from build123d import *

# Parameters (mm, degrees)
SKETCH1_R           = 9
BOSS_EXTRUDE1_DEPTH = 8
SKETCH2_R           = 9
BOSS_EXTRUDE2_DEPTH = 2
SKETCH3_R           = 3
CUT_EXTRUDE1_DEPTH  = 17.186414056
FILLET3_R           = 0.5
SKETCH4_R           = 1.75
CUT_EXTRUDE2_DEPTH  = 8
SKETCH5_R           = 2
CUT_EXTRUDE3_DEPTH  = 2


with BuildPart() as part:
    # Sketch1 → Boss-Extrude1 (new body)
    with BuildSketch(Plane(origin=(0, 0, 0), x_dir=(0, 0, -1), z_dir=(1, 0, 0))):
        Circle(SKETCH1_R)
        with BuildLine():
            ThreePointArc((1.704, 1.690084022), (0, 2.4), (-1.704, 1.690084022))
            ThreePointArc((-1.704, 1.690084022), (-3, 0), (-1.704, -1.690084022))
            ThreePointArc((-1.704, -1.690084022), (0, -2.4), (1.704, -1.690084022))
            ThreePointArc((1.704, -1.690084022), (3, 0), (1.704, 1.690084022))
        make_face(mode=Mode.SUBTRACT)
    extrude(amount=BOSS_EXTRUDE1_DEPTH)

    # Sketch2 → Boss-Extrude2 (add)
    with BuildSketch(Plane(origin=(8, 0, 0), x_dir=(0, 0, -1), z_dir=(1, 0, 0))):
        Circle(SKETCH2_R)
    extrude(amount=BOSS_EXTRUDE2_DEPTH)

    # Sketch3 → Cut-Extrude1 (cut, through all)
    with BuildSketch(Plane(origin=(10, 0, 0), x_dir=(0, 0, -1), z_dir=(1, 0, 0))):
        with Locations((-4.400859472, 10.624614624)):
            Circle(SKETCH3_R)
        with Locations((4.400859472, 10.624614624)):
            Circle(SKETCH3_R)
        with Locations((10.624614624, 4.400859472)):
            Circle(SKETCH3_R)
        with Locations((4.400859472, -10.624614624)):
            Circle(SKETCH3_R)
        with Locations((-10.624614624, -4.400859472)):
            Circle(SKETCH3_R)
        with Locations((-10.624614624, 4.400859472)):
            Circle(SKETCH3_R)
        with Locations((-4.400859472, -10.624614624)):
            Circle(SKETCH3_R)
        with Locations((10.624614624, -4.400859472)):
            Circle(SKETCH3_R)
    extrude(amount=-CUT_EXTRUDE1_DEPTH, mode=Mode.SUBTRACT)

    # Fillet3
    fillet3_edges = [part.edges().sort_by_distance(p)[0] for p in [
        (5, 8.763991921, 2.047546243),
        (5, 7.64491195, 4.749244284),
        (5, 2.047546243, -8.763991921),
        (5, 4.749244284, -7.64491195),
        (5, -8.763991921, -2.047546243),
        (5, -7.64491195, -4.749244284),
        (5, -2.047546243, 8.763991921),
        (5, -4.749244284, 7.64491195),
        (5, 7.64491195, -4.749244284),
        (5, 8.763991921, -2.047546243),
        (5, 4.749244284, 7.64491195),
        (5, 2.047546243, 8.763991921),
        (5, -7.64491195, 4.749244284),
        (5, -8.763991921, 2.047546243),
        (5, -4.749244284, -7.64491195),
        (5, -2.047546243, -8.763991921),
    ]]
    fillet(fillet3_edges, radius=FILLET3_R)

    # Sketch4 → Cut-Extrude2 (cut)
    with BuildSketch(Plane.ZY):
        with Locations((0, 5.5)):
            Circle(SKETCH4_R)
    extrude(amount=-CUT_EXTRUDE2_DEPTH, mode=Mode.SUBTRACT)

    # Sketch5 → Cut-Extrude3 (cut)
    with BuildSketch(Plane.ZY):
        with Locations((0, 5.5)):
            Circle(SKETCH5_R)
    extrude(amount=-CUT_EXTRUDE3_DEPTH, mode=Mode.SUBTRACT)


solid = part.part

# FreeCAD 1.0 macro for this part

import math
import FreeCAD as App
import Part
import Sketcher
from FreeCAD import Vector


def edges_at(feature, points):
    """Names of the edges that pass closest to the given points."""
    edges = feature.Shape.Edges
    near = lambda p: min(range(len(edges)), key=lambda i: edges[i].distToShape(Part.Vertex(*p))[0])
    return sorted({f"Edge{near(p) + 1}" for p in points})

doc = App.newDocument("Part")
params = doc.addObject("Spreadsheet::Sheet", "Params")
for row, (alias, value) in enumerate([
    ("sketch1_diameter", "18 mm"),
    ("sketch1_radius", "2.4 mm"),
    ("sketch1_radius2", "1.75 mm"),
    ("pad1_length", "8 mm"),
    ("sketch2_diameter", "18 mm"),
    ("pad2_length", "2 mm"),
    ("sketch3_diameter", "6 mm"),
    ("fillet_radius", "0.5 mm"),
    ("sketch4_diameter", "3.5 mm"),
    ("pocket2_length", "8 mm"),
    ("sketch5_diameter", "4 mm"),
    ("pocket3_length", "2 mm"),
], start=1):
    params.set(f"A{row}", alias)
    params.set(f"B{row}", "=" + value)
    params.setAlias(f"B{row}", alias)

body = doc.addObject("PartDesign::Body", "Body")

# Sketch on YZ plane
sketch1 = body.newObject("Sketcher::SketchObject", "Sketch")
sketch1.AttachmentSupport = (doc.getObject("YZ_Plane"), [""])
sketch1.MapMode = "FlatFace"
sketch1.addGeometry(Part.Circle(Vector(0, 0, 0), Vector(0, 0, 1), 9), False)
sketch1.addGeometry(Part.ArcOfCircle(Part.Circle(Vector(0, 0, 0), Vector(0, 0, 1), 2.4), math.radians(-45), math.radians(45)), False)
sketch1.addGeometry(Part.ArcOfCircle(Part.Circle(Vector(0, -1.2, 0), Vector(0, 0, 1), 1.8), math.radians(-165), math.radians(-15)), False)
sketch1.addGeometry(Part.ArcOfCircle(Part.Circle(Vector(0, 0, 0), Vector(0, 0, 1), 2.4), math.radians(135), math.radians(225)), False)
sketch1.addGeometry(Part.ArcOfCircle(Part.Circle(Vector(0, 1.2, 0), Vector(0, 0, 1), 1.8), math.radians(15), math.radians(165)), False)
sketch1.addConstraint(Sketcher.Constraint("Coincident", 1, 1, 2, 2))
sketch1.addConstraint(Sketcher.Constraint("Coincident", 2, 1, 3, 2))
sketch1.addConstraint(Sketcher.Constraint("Coincident", 3, 1, 4, 2))
sketch1.addConstraint(Sketcher.Constraint("Coincident", 4, 1, 1, 2))
sketch1.addConstraint(Sketcher.Constraint("Coincident", 0, 3, -1, 1))
sketch1.addConstraint(Sketcher.Constraint("Coincident", 1, 3, -1, 1))
sketch1.addConstraint(Sketcher.Constraint("Coincident", 3, 3, -1, 1))
sketch1.addConstraint(Sketcher.Constraint("Equal", 1, 3))
sketch1.addConstraint(Sketcher.Constraint("Equal", 2, 4))
sketch1.addConstraint(Sketcher.Constraint("Symmetric", 2, 3, 4, 3, -1, 1))
sketch1.addConstraint(Sketcher.Constraint("PointOnObject", 2, 3, -2))
sketch1.addConstraint(Sketcher.Constraint("Diameter", 0, 18.0))
sketch1.addConstraint(Sketcher.Constraint("Radius", 1, 2.4))
sketch1.addConstraint(Sketcher.Constraint("Radius", 2, 1.75))
sketch1.addConstraint(Sketcher.Constraint("DistanceY", 2, 3, 4, 3, 2.5))
sketch1.setExpression("Constraints[11]", "Params.sketch1_diameter")
sketch1.setExpression("Constraints[12]", "Params.sketch1_radius")
sketch1.setExpression("Constraints[13]", "Params.sketch1_radius2")
pad1 = body.newObject("PartDesign::Pad", "Pad")
pad1.Profile = sketch1
pad1.setExpression("Length", "Params.pad1_length")

# Sketch on YZ plane
sketch2 = body.newObject("Sketcher::SketchObject", "Sketch001")
sketch2.AttachmentSupport = (doc.getObject("YZ_Plane"), [""])
sketch2.MapMode = "FlatFace"
sketch2.AttachmentOffset = App.Placement(Vector(0, 0, 8), App.Rotation())
sketch2.addGeometry(Part.Circle(Vector(0, 0, 0), Vector(0, 0, 1), 9), False)
sketch2.addConstraint(Sketcher.Constraint("Coincident", 0, 3, -1, 1))
sketch2.addConstraint(Sketcher.Constraint("Diameter", 0, 18.0))
sketch2.setExpression("Constraints[1]", "Params.sketch2_diameter")
pad2 = body.newObject("PartDesign::Pad", "Pad001")
pad2.Profile = sketch2
pad2.setExpression("Length", "Params.pad2_length")

# Sketch on YZ plane
sketch3 = body.newObject("Sketcher::SketchObject", "Sketch002")
sketch3.AttachmentSupport = (doc.getObject("YZ_Plane"), [""])
sketch3.MapMode = "FlatFace"
sketch3.AttachmentOffset = App.Placement(Vector(0, 0, 10), App.Rotation())
sketch3.addGeometry(Part.Circle(Vector(10.6, 4.4, 0), Vector(0, 0, 1), 3), False)
sketch3.addGeometry(Part.Circle(Vector(10.6, -4.4, 0), Vector(0, 0, 1), 3), False)
sketch3.addGeometry(Part.Circle(Vector(4.4, -10.6, 0), Vector(0, 0, 1), 3), False)
sketch3.addGeometry(Part.Circle(Vector(-10.6, -4.4, 0), Vector(0, 0, 1), 3), False)
sketch3.addGeometry(Part.Circle(Vector(-4.4, 10.6, 0), Vector(0, 0, 1), 3), False)
sketch3.addGeometry(Part.Circle(Vector(4.4, 10.6, 0), Vector(0, 0, 1), 3), False)
sketch3.addGeometry(Part.Circle(Vector(-10.6, 4.4, 0), Vector(0, 0, 1), 3), False)
sketch3.addGeometry(Part.Circle(Vector(-4.4, -10.6, 0), Vector(0, 0, 1), 3), False)
sketch3.addConstraint(Sketcher.Constraint("Equal", 0, 1))
sketch3.addConstraint(Sketcher.Constraint("Equal", 1, 2))
sketch3.addConstraint(Sketcher.Constraint("Equal", 2, 3))
sketch3.addConstraint(Sketcher.Constraint("Equal", 3, 4))
sketch3.addConstraint(Sketcher.Constraint("Equal", 4, 5))
sketch3.addConstraint(Sketcher.Constraint("Equal", 5, 6))
sketch3.addConstraint(Sketcher.Constraint("Equal", 6, 7))
sketch3.addConstraint(Sketcher.Constraint("Symmetric", 0, 3, 3, 3, -1, 1))
sketch3.addConstraint(Sketcher.Constraint("Symmetric", 2, 3, 4, 3, -1, 1))
sketch3.addConstraint(Sketcher.Constraint("Symmetric", 1, 3, 6, 3, -1, 1))
sketch3.addConstraint(Sketcher.Constraint("Symmetric", 5, 3, 7, 3, -1, 1))
sketch3.addConstraint(Sketcher.Constraint("Symmetric", 1, 3, 3, 3, -2))
sketch3.addConstraint(Sketcher.Constraint("Symmetric", 4, 3, 5, 3, -2))
sketch3.addConstraint(Sketcher.Constraint("Diameter", 0, 6.0))
sketch3.addConstraint(Sketcher.Constraint("DistanceY", -1, 1, 0, 3, 4.400859))
sketch3.addConstraint(Sketcher.Constraint("DistanceX", -1, 1, 2, 3, 4.400859))
sketch3.addConstraint(Sketcher.Constraint("DistanceX", 3, 3, 1, 3, 21.249229))
sketch3.addConstraint(Sketcher.Constraint("DistanceY", 2, 3, 4, 3, 21.249229))
sketch3.setExpression("Constraints[13]", "Params.sketch3_diameter")
pocket1 = body.newObject("PartDesign::Pocket", "Pocket")
pocket1.Profile = sketch3
pocket1.Type = "ThroughAll"
doc.recompute()

fillet = body.newObject("PartDesign::Fillet", "Fillet")
fillet.Base = (pocket1, edges_at(pocket1, [
    (5, 8.764, 2.048),
    (5, 7.645, 4.749),
    (5, 2.048, -8.764),
    (5, 4.749, -7.645),
    (5, -8.764, -2.048),
    (5, -7.645, -4.749),
    (5, -2.048, 8.764),
    (5, -4.749, 7.645),
    (5, 7.645, -4.749),
    (5, 8.764, -2.048),
    (5, 4.749, 7.645),
    (5, 2.048, 8.764),
    (5, -7.645, 4.749),
    (5, -8.764, 2.048),
    (5, -4.749, -7.645),
    (5, -2.048, -8.764),
]))
fillet.setExpression("Radius", "Params.fillet_radius")

# Sketch on YZ plane
sketch4 = body.newObject("Sketcher::SketchObject", "Sketch003")
sketch4.AttachmentSupport = (doc.getObject("YZ_Plane"), [""])
sketch4.MapMode = "FlatFace"
sketch4.addGeometry(Part.Circle(Vector(5.5, 0, 0), Vector(0, 0, 1), 1.8), False)
sketch4.addConstraint(Sketcher.Constraint("PointOnObject", 0, 3, -1))
sketch4.addConstraint(Sketcher.Constraint("Diameter", 0, 3.5))
sketch4.addConstraint(Sketcher.Constraint("DistanceX", -1, 1, 0, 3, 5.5))
sketch4.setExpression("Constraints[1]", "Params.sketch4_diameter")
pocket2 = body.newObject("PartDesign::Pocket", "Pocket001")
pocket2.Profile = sketch4
pocket2.setExpression("Length", "Params.pocket2_length")
pocket2.Reversed = True

# Sketch on YZ plane
sketch5 = body.newObject("Sketcher::SketchObject", "Sketch004")
sketch5.AttachmentSupport = (doc.getObject("YZ_Plane"), [""])
sketch5.MapMode = "FlatFace"
sketch5.addGeometry(Part.Circle(Vector(5.5, 0, 0), Vector(0, 0, 1), 2), False)
sketch5.addConstraint(Sketcher.Constraint("PointOnObject", 0, 3, -1))
sketch5.addConstraint(Sketcher.Constraint("Diameter", 0, 4.0))
sketch5.addConstraint(Sketcher.Constraint("DistanceX", -1, 1, 0, 3, 5.5))
sketch5.setExpression("Constraints[1]", "Params.sketch5_diameter")
pocket3 = body.newObject("PartDesign::Pocket", "Pocket002")
pocket3.Profile = sketch5
pocket3.setExpression("Length", "Params.pocket3_length")
pocket3.Reversed = True

doc.recompute()
